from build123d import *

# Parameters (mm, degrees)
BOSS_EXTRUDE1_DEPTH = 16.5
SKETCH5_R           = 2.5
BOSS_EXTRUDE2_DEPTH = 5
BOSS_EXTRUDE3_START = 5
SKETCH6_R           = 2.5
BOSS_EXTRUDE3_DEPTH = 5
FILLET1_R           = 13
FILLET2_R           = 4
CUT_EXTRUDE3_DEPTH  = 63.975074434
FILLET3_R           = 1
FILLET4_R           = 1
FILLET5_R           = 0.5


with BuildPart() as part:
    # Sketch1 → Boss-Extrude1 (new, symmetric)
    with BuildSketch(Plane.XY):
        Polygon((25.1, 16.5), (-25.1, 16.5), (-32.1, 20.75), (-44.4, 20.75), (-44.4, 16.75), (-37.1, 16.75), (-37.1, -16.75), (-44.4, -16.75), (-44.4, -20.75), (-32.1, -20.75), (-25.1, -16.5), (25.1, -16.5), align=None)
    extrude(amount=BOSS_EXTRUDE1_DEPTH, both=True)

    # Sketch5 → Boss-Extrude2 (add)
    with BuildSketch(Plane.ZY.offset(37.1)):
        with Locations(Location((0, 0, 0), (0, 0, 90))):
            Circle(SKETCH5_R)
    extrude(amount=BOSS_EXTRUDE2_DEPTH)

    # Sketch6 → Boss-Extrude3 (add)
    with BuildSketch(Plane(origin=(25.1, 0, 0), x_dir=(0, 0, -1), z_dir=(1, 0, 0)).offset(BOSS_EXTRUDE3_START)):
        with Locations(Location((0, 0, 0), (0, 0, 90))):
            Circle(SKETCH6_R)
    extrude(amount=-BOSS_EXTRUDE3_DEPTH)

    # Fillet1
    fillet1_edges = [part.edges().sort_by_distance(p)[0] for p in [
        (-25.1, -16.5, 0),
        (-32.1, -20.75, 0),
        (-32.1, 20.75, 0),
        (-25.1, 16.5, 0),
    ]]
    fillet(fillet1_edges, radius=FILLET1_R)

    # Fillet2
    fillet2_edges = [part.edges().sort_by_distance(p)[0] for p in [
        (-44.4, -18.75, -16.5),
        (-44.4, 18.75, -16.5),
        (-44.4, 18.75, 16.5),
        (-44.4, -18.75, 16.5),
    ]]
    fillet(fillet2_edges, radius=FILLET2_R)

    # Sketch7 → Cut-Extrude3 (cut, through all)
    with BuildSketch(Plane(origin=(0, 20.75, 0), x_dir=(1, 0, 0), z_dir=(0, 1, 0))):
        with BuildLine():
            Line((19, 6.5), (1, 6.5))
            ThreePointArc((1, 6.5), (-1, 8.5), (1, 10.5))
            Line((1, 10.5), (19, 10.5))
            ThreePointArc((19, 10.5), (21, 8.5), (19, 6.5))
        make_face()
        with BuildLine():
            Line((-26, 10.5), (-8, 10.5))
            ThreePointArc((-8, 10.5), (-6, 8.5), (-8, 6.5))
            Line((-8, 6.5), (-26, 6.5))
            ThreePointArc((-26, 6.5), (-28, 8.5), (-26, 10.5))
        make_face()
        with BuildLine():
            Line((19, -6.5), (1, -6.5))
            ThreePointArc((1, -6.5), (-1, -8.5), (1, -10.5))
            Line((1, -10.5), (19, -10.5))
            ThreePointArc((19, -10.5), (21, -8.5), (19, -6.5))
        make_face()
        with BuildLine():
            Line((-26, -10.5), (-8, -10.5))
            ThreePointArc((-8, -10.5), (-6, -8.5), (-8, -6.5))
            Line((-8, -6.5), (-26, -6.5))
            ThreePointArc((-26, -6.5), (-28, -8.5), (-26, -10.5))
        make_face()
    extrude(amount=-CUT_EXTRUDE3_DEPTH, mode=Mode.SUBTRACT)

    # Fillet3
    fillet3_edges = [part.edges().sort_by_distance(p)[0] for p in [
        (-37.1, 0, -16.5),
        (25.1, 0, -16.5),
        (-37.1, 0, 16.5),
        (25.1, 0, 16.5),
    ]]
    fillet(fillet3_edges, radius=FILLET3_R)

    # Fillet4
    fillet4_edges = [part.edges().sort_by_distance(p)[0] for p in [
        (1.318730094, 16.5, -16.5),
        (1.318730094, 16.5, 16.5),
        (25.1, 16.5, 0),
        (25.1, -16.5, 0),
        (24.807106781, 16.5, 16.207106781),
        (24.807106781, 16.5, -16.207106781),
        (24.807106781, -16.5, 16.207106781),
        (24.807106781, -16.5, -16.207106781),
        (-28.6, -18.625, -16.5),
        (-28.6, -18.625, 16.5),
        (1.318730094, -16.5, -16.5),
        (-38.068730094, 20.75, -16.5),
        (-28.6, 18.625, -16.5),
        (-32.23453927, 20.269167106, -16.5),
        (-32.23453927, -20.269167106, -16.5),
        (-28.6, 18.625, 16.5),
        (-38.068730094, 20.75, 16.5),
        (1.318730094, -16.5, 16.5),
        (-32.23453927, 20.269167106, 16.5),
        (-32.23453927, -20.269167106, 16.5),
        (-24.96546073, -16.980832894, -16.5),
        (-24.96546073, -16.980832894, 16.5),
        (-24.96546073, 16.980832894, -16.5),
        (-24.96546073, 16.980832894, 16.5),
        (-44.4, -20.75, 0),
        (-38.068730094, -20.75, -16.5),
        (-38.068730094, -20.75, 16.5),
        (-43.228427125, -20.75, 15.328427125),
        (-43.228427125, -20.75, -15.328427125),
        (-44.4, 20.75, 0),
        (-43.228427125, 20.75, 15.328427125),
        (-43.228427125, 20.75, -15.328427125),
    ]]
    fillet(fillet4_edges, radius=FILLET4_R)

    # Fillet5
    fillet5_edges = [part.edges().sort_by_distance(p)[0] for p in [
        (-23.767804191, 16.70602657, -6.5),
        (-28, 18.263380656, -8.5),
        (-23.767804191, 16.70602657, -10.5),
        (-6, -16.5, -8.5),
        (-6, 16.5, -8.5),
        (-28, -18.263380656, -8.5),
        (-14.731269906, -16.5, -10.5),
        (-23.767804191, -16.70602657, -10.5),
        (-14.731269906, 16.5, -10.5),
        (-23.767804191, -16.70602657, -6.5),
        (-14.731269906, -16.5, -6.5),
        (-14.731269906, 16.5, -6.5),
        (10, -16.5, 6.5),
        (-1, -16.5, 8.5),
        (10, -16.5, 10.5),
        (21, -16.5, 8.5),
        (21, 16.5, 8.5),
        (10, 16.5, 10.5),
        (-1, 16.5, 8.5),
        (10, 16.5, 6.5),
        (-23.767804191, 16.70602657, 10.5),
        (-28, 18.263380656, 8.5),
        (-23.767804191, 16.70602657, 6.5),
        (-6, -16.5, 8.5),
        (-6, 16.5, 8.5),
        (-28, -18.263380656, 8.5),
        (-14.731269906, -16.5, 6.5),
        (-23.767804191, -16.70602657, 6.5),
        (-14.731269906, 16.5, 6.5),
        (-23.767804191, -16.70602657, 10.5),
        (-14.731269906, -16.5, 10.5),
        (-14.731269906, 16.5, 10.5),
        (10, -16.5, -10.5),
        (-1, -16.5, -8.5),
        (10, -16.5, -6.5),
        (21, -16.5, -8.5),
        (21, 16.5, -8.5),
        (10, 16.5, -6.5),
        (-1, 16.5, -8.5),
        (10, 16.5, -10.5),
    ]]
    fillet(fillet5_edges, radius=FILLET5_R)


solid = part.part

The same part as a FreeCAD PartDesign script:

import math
import FreeCAD as App
import Part
import Sketcher

V = App.Vector


def edges_at(feature, points):
    """Names of the edges that pass closest to the given points."""
    edges = feature.Shape.Edges
    near = lambda p: min(range(len(edges)), key=lambda i: edges[i].distToShape(Part.Vertex(*p))[0])
    return sorted({f"Edge{near(p) + 1}" for p in points})


def add_polygon(sketch, points):
    """Adds a closed chain of lines whose ends are joined by coincident constraints."""
    first, n = sketch.GeometryCount, len(points)
    for a, b in zip(points, points[1:] + points[:1]):
        sketch.addGeometry(Part.LineSegment(App.Vector(*a, 0), App.Vector(*b, 0)), False)
    for i in range(n):
        sketch.addConstraint(Sketcher.Constraint("Coincident", first + i, 2, first + (i + 1) % n, 1))

doc = App.newDocument("Part")
body = doc.addObject("PartDesign::Body", "Body")

# Sketch on XY plane
sketch1 = body.newObject("Sketcher::SketchObject", "Sketch")
sketch1.AttachmentSupport = (doc.getObject("XY_Plane"), [""])
sketch1.MapMode = "FlatFace"
add_polygon(sketch1, [(25.1, 16.5), (-25.1, 16.5), (-32.1, 20.75), (-44.4, 20.75), (-44.4, 16.75), (-37.1, 16.75), (-37.1, -16.75), (-44.4, -16.75), (-44.4, -20.75), (-32.1, -20.75), (-25.1, -16.5), (25.1, -16.5)])  # lines 0-11
sketch1.addConstraint([
    Sketcher.Constraint("Horizontal", 0),
    Sketcher.Constraint("Horizontal", 2),
    Sketcher.Constraint("Vertical", 3),
    Sketcher.Constraint("Horizontal", 4),
    Sketcher.Constraint("Vertical", 5),
    Sketcher.Constraint("Horizontal", 6),
    Sketcher.Constraint("Vertical", 7),
    Sketcher.Constraint("Horizontal", 8),
    Sketcher.Constraint("Horizontal", 10),
    Sketcher.Constraint("Vertical", 11),
    Sketcher.Constraint("Symmetric", 0, 2, 10, 2, -1, 1),
    Sketcher.Constraint("Symmetric", 3, 2, 6, 2, -1),
    Sketcher.Constraint("Symmetric", 1, 2, 8, 2, -1),
    Sketcher.Constraint("Vertical", 0, 2, 9, 2),
    Sketcher.Constraint("DistanceY", 3, 2, 3, 1, 4.0),
    Sketcher.Constraint("DistanceY", 11, 1, 11, 2, 33.0),
    Sketcher.Constraint("DistanceX", 0, 2, 0, 1, 50.2),
    Sketcher.Constraint("DistanceX", 2, 2, 2, 1, 12.3),
    Sketcher.Constraint("DistanceX", 4, 1, 4, 2, 7.3),
    Sketcher.Constraint("DistanceY", 5, 2, 5, 1, 33.5),
    Sketcher.Constraint("DistanceX", 1, 2, 0, 2, 7.0),
])
pad1 = body.newObject("PartDesign::Pad", "Pad")
pad1.Profile = sketch1
pad1.Length = 33
pad1.Midplane = True

# Sketch on YZ plane
sketch2 = body.newObject("Sketcher::SketchObject", "Sketch001")
sketch2.AttachmentSupport = (doc.getObject("YZ_Plane"), [""])
sketch2.MapMode = "FlatFace"
sketch2.AttachmentOffset = App.Placement(V(0, 0, -37.1), App.Rotation())
sketch2.addGeometry(Part.Circle(V(0, 0, 0), V(0, 0, 1), 2.5), False)
sketch2.addConstraint([
    Sketcher.Constraint("Coincident", 0, 3, -1, 1),
    Sketcher.Constraint("Diameter", 0, 5.0),
])
pad2 = body.newObject("PartDesign::Pad", "Pad001")
pad2.Profile = sketch2
pad2.Length = 5
pad2.Reversed = True

# Sketch on YZ plane
sketch3 = body.newObject("Sketcher::SketchObject", "Sketch002")
sketch3.AttachmentSupport = (doc.getObject("YZ_Plane"), [""])
sketch3.MapMode = "FlatFace"
sketch3.AttachmentOffset = App.Placement(V(0, 0, 30.1), App.Rotation())
sketch3.addGeometry(Part.Circle(V(0, 0, 0), V(0, 0, 1), 2.5), False)
sketch3.addConstraint([
    Sketcher.Constraint("Coincident", 0, 3, -1, 1),
    Sketcher.Constraint("Diameter", 0, 5.0),
])
pad3 = body.newObject("PartDesign::Pad", "Pad002")
pad3.Profile = sketch3
pad3.Length = 5
pad3.Reversed = True
doc.recompute()

fillet = body.newObject("PartDesign::Fillet", "Fillet")
fillet.Base = (pad3, edges_at(pad3, [
    (-25.1, -16.5, 0),
    (-32.1, -20.75, 0),
    (-32.1, 20.75, 0),
    (-25.1, 16.5, 0),
]))
fillet.Radius = 13
doc.recompute()

fillet2 = body.newObject("PartDesign::Fillet", "Fillet001")
fillet2.Base = (fillet, edges_at(fillet, [
    (-44.4, -18.75, -16.5),
    (-44.4, 18.75, -16.5),
    (-44.4, 18.75, 16.5),
    (-44.4, -18.75, 16.5),
]))
fillet2.Radius = 4

# Sketch on XZ plane
sketch4 = body.newObject("Sketcher::SketchObject", "Sketch003")
sketch4.AttachmentSupport = (doc.getObject("XZ_Plane"), [""])
sketch4.MapMode = "FlatFace"
sketch4.AttachmentOffset = App.Placement(V(0, 0, -20.75), App.Rotation())
sketch4.addGeometry([
    Part.LineSegment(V(1, -6.5, 0), V(19, -6.5, 0)),  # 0
    Part.ArcOfCircle(Part.Circle(V(19, -8.5, 0), V(0, 0, 1), 2), math.radians(-90), math.radians(90)),  # 1
    Part.LineSegment(V(19, -10.5, 0), V(1, -10.5, 0)),  # 2
    Part.ArcOfCircle(Part.Circle(V(1, -8.5, 0), V(0, 0, 1), 2), math.radians(90), math.radians(270)),  # 3
    Part.LineSegment(V(-8, -10.5, 0), V(-26, -10.5, 0)),  # 4
    Part.ArcOfCircle(Part.Circle(V(-26, -8.5, 0), V(0, 0, 1), 2), math.radians(90), math.radians(270)),  # 5
    Part.LineSegment(V(-26, -6.5, 0), V(-8, -6.5, 0)),  # 6
    Part.ArcOfCircle(Part.Circle(V(-8, -8.5, 0), V(0, 0, 1), 2), math.radians(-90), math.radians(90)),  # 7
    Part.LineSegment(V(19, 6.5, 0), V(1, 6.5, 0)),  # 8
    Part.ArcOfCircle(Part.Circle(V(1, 8.5, 0), V(0, 0, 1), 2), math.radians(90), math.radians(270)),  # 9
    Part.LineSegment(V(1, 10.5, 0), V(19, 10.5, 0)),  # 10
    Part.ArcOfCircle(Part.Circle(V(19, 8.5, 0), V(0, 0, 1), 2), math.radians(-90), math.radians(90)),  # 11
    Part.LineSegment(V(-26, 10.5, 0), V(-8, 10.5, 0)),  # 12
    Part.ArcOfCircle(Part.Circle(V(-8, 8.5, 0), V(0, 0, 1), 2), math.radians(-90), math.radians(90)),  # 13
    Part.LineSegment(V(-8, 6.5, 0), V(-26, 6.5, 0)),  # 14
    Part.ArcOfCircle(Part.Circle(V(-26, 8.5, 0), V(0, 0, 1), 2), math.radians(90), math.radians(270)),  # 15
], False)
sketch4.addConstraint([
    Sketcher.Constraint("Tangent", 0, 2, 1, 2),
    Sketcher.Constraint("Tangent", 1, 1, 2, 1),
    Sketcher.Constraint("Tangent", 2, 2, 3, 2),
    Sketcher.Constraint("Tangent", 3, 1, 0, 1),
    Sketcher.Constraint("Tangent", 4, 2, 5, 2),
    Sketcher.Constraint("Tangent", 5, 1, 6, 1),
    Sketcher.Constraint("Tangent", 6, 2, 7, 2),
    Sketcher.Constraint("Tangent", 7, 1, 4, 1),
    Sketcher.Constraint("Tangent", 8, 2, 9, 2),
    Sketcher.Constraint("Tangent", 9, 1, 10, 1),
    Sketcher.Constraint("Tangent", 10, 2, 11, 2),
    Sketcher.Constraint("Tangent", 11, 1, 8, 1),
    Sketcher.Constraint("Tangent", 12, 2, 13, 2),
    Sketcher.Constraint("Tangent", 13, 1, 14, 1),
    Sketcher.Constraint("Tangent", 14, 2, 15, 2),
    Sketcher.Constraint("Tangent", 15, 1, 12, 1),
    Sketcher.Constraint("Horizontal", 0),
    Sketcher.Constraint("Horizontal", 2),
    Sketcher.Constraint("Horizontal", 4),
    Sketcher.Constraint("Horizontal", 6),
    Sketcher.Constraint("Horizontal", 8),
    Sketcher.Constraint("Horizontal", 10),
    Sketcher.Constraint("Horizontal", 12),
    Sketcher.Constraint("Horizontal", 14),
    Sketcher.Constraint("Equal", 3, 5),
    Sketcher.Constraint("Equal", 7, 9),
    Sketcher.Constraint("Equal", 11, 13),
    Sketcher.Constraint("Symmetric", 3, 3, 9, 3, -1),
    Sketcher.Constraint("Symmetric", 7, 3, 13, 3, -1),
    Sketcher.Constraint("Horizontal", 3, 3, 5, 3),
    Sketcher.Constraint("Vertical", 1, 3, 11, 3),
    Sketcher.Constraint("Vertical", 5, 3, 15, 3),
    Sketcher.Constraint("Equal", 2, 4),
    Sketcher.Constraint("Radius", 1, 2.0),
    Sketcher.Constraint("DistanceX", 0, 1, 0, 2, 18.0),
    Sketcher.Constraint("DistanceX", -1, 1, 1, 3, 19.0),
    Sketcher.Constraint("DistanceX", 5, 3, -1, 1, 26.0),
    Sketcher.Constraint("DistanceY", 3, 3, 9, 3, 17.0),
])
pocket1 = body.newObject("PartDesign::Pocket", "Pocket")
pocket1.Profile = sketch4
pocket1.Type = "ThroughAll"
pocket1.Reversed = True
doc.recompute()

fillet3 = body.newObject("PartDesign::Fillet", "Fillet002")
fillet3.Base = (pocket1, edges_at(pocket1, [
    (-37.1, 0, -16.5),
    (25.1, 0, -16.5),
    (-37.1, 0, 16.5),
    (25.1, 0, 16.5),
]))
fillet3.Radius = 1
doc.recompute()

fillet4 = body.newObject("PartDesign::Fillet", "Fillet003")
fillet4.Base = (fillet3, edges_at(fillet3, [
    (1.319, 16.5, -16.5),
    (1.319, 16.5, 16.5),
    (25.1, 16.5, 0),
    (25.1, -16.5, 0),
    (24.807, 16.5, 16.207),
    (24.807, 16.5, -16.207),
    (24.807, -16.5, 16.207),
    (24.807, -16.5, -16.207),
    (-28.6, -18.625, -16.5),
    (-28.6, -18.625, 16.5),
    (1.319, -16.5, -16.5),
    (-38.069, 20.75, -16.5),
    (-28.6, 18.625, -16.5),
    (-32.235, 20.269, -16.5),
    (-32.235, -20.269, -16.5),
    (-28.6, 18.625, 16.5),
    (-38.069, 20.75, 16.5),
    (1.319, -16.5, 16.5),
    (-32.235, 20.269, 16.5),
    (-32.235, -20.269, 16.5),
    (-24.965, -16.981, -16.5),
    (-24.965, -16.981, 16.5),
    (-24.965, 16.981, -16.5),
    (-24.965, 16.981, 16.5),
    (-44.4, -20.75, 0),
    (-38.069, -20.75, -16.5),
    (-38.069, -20.75, 16.5),
    (-43.228, -20.75, 15.328),
    (-43.228, -20.75, -15.328),
    (-44.4, 20.75, 0),
    (-43.228, 20.75, 15.328),
    (-43.228, 20.75, -15.328),
]))
fillet4.Radius = 1
doc.recompute()

fillet5 = body.newObject("PartDesign::Fillet", "Fillet004")
fillet5.Base = (fillet4, edges_at(fillet4, [
    (-23.768, 16.706, -6.5),
    (-28, 18.263, -8.5),
    (-23.768, 16.706, -10.5),
    (-6, -16.5, -8.5),
    (-6, 16.5, -8.5),
    (-28, -18.263, -8.5),
    (-14.731, -16.5, -10.5),
    (-23.768, -16.706, -10.5),
    (-14.731, 16.5, -10.5),
    (-23.768, -16.706, -6.5),
    (-14.731, -16.5, -6.5),
    (-14.731, 16.5, -6.5),
    (10, -16.5, 6.5),
    (-1, -16.5, 8.5),
    (10, -16.5, 10.5),
    (21, -16.5, 8.5),
    (21, 16.5, 8.5),
    (10, 16.5, 10.5),
    (-1, 16.5, 8.5),
    (10, 16.5, 6.5),
    (-23.768, 16.706, 10.5),
    (-28, 18.263, 8.5),
    (-23.768, 16.706, 6.5),
    (-6, -16.5, 8.5),
    (-6, 16.5, 8.5),
    (-28, -18.263, 8.5),
    (-14.731, -16.5, 6.5),
    (-23.768, -16.706, 6.5),
    (-14.731, 16.5, 6.5),
    (-23.768, -16.706, 10.5),
    (-14.731, -16.5, 10.5),
    (-14.731, 16.5, 10.5),
    (10, -16.5, -10.5),
    (-1, -16.5, -8.5),
    (10, -16.5, -6.5),
    (21, -16.5, -8.5),
    (21, 16.5, -8.5),
    (10, 16.5, -6.5),
    (-1, 16.5, -8.5),
    (10, 16.5, -10.5),
]))
fillet5.Radius = 0.5

doc.recompute()
